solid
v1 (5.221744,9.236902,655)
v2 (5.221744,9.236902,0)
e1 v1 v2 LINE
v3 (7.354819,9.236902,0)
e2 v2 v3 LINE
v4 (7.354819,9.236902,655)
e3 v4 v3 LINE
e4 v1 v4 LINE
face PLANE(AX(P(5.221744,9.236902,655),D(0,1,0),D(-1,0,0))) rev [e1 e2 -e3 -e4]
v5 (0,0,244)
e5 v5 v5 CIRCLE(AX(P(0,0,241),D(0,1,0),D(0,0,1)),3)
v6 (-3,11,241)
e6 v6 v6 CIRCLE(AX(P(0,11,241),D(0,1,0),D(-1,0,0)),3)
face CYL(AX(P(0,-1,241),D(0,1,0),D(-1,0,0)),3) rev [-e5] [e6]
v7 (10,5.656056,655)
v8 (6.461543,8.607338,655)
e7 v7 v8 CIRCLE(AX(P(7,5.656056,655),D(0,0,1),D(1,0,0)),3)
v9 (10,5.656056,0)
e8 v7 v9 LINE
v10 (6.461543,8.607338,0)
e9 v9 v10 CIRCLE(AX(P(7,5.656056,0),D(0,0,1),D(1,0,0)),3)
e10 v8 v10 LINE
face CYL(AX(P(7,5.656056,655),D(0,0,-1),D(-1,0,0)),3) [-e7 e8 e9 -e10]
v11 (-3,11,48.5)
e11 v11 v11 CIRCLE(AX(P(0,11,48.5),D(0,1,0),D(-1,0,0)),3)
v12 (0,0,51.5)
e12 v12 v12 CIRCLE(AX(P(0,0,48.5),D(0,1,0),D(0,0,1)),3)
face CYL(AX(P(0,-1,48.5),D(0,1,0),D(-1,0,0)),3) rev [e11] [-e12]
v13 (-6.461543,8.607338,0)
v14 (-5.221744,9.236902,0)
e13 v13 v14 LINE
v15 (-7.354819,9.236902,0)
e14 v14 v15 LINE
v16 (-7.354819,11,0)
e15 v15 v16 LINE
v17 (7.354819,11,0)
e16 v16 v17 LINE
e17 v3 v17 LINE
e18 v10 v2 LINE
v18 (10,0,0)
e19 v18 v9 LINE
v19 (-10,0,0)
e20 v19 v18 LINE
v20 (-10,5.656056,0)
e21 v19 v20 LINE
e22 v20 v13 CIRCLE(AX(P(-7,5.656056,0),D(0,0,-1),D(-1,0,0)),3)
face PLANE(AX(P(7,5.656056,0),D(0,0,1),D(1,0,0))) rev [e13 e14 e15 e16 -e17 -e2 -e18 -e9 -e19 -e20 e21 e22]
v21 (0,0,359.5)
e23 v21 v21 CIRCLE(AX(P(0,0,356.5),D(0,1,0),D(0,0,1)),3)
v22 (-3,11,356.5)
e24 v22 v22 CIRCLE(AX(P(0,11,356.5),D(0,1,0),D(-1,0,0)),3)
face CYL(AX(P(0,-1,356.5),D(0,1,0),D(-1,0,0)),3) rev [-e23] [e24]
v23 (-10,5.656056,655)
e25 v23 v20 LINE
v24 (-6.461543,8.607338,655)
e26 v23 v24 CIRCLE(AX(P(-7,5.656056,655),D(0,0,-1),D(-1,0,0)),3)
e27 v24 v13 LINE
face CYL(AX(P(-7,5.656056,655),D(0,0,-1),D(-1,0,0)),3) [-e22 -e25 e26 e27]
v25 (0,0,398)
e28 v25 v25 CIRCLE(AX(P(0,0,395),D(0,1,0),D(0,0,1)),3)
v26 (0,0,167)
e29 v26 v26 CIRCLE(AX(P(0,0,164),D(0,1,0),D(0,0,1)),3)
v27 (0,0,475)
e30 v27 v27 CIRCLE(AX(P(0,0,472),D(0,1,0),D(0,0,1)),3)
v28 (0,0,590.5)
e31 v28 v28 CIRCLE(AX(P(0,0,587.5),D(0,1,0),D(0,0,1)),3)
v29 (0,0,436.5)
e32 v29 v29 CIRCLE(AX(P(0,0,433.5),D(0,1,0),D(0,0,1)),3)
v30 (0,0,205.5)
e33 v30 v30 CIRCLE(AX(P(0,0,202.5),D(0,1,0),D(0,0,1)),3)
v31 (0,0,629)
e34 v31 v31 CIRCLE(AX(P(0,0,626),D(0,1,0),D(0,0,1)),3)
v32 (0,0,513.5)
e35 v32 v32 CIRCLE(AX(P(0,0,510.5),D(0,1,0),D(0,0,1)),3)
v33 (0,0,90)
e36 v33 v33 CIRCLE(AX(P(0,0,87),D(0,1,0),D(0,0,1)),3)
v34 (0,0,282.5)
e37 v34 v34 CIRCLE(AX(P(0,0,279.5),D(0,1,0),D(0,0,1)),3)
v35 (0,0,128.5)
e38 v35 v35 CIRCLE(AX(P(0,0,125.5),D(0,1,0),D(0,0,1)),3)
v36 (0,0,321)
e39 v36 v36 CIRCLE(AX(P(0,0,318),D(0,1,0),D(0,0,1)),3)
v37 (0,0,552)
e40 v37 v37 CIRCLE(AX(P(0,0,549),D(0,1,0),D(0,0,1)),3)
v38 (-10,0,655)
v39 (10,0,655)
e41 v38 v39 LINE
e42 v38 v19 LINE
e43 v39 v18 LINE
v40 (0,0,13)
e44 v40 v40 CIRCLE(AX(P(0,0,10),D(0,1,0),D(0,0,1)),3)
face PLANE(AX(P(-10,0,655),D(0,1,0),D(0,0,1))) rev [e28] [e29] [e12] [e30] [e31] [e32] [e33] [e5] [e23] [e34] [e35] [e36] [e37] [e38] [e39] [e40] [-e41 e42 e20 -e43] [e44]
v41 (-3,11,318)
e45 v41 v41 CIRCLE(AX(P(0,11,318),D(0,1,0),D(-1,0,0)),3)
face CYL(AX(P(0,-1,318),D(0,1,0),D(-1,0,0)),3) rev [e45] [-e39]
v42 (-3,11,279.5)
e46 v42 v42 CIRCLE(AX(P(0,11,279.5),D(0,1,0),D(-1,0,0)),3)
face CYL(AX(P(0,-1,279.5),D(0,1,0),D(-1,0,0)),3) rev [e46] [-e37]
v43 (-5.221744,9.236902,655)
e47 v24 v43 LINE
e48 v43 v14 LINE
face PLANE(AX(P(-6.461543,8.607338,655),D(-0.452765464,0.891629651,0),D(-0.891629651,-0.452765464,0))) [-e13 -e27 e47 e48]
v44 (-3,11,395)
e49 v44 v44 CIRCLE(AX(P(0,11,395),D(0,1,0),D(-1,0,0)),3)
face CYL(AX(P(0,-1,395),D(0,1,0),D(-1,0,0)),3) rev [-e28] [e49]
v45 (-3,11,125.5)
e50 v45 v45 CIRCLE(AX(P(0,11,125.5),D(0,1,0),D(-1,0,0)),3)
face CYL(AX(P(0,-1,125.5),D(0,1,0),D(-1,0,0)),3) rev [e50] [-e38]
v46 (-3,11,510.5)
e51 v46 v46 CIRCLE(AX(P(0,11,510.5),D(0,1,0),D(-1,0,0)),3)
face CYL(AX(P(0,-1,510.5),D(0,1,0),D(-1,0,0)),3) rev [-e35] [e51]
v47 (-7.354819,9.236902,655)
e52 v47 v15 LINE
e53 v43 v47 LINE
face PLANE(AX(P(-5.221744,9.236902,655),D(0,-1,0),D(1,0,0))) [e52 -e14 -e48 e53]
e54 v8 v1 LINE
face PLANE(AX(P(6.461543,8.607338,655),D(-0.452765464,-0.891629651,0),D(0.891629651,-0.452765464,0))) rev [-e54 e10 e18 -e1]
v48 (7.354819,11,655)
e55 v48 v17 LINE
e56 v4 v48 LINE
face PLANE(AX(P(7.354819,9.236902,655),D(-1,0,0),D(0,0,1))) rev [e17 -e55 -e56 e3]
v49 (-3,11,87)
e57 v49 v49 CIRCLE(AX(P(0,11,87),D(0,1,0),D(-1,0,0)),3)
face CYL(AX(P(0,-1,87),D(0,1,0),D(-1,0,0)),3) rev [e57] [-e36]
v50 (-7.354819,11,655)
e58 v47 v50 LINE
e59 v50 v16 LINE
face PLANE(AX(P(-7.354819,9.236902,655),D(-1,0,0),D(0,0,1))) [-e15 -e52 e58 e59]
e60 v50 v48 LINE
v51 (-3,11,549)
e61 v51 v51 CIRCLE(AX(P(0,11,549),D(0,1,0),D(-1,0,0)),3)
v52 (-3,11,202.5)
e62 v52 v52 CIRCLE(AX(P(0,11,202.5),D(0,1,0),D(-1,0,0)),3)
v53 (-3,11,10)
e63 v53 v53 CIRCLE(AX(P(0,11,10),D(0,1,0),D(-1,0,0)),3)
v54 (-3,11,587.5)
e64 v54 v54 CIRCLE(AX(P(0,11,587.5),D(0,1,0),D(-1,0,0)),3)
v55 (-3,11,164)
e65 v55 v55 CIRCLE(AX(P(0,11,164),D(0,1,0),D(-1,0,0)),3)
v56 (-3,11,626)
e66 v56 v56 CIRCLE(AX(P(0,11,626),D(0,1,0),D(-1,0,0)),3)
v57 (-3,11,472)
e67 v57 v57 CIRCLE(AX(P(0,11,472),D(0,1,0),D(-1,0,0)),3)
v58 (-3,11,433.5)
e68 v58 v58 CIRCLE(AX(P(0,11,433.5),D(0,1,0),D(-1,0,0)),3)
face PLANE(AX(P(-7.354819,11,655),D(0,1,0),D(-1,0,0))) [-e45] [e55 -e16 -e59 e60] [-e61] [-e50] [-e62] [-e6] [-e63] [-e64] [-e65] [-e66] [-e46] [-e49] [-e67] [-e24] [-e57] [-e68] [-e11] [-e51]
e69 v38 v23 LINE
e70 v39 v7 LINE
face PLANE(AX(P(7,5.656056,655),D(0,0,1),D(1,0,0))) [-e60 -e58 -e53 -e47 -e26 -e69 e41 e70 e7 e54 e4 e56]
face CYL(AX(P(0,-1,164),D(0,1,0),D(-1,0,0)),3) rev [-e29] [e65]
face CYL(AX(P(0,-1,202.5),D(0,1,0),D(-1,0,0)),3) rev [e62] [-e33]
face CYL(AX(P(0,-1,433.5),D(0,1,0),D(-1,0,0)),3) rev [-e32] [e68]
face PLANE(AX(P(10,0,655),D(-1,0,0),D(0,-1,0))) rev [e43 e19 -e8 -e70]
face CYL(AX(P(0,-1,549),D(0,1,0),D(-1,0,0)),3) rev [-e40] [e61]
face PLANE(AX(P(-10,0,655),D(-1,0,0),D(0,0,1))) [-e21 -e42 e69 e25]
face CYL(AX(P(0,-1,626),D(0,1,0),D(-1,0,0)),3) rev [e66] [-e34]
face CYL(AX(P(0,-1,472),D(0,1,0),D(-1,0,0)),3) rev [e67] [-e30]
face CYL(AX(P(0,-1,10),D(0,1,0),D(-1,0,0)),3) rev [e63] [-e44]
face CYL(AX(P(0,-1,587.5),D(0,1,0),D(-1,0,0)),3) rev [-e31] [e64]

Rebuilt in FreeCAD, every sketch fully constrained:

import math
import FreeCAD as App
import Part
import Sketcher
Q = App.Units.Quantity

doc = App.newDocument("Part")
body = doc.addObject("PartDesign::Body", "Body")

# Sketch on XY plane
sketch1 = body.newObject("Sketcher::SketchObject", "Sketch")
sketch1.AttachmentSupport = (doc.getObject("XY_Plane"), [""])
sketch1.MapMode = "FlatFace"
sketch1.addGeometry([
    Part.LineSegment(App.Vector(-10, 5.7, 0), App.Vector(-10, 0, 0)),  # 0
    Part.LineSegment(App.Vector(-10, 0, 0), App.Vector(10, 0, 0)),  # 1
    Part.LineSegment(App.Vector(10, 0, 0), App.Vector(10, 5.7, 0)),  # 2
    Part.ArcOfCircle(Part.Circle(App.Vector(7, 5.7, 0), App.Vector(0, 0, 1), 3), math.radians(0), math.radians(100)),  # 3
    Part.LineSegment(App.Vector(6.5, 8.6, 0), App.Vector(5.2, 9.2, 0)),  # 4
    Part.LineSegment(App.Vector(5.2, 9.2, 0), App.Vector(7.4, 9.2, 0)),  # 5
    Part.LineSegment(App.Vector(7.4, 9.2, 0), App.Vector(7.4, 11, 0)),  # 6
    Part.LineSegment(App.Vector(7.4, 11, 0), App.Vector(-7.4, 11, 0)),  # 7
    Part.LineSegment(App.Vector(-7.4, 11, 0), App.Vector(-7.4, 9.2, 0)),  # 8
    Part.LineSegment(App.Vector(-7.4, 9.2, 0), App.Vector(-5.2, 9.2, 0)),  # 9
    Part.LineSegment(App.Vector(-5.2, 9.2, 0), App.Vector(-6.5, 8.6, 0)),  # 10
    Part.ArcOfCircle(Part.Circle(App.Vector(-7, 5.7, 0), App.Vector(0, 0, 1), 3), math.radians(80), math.radians(180)),  # 11
], False)
sketch1.addConstraint([
    Sketcher.Constraint("Coincident", 0, 2, 1, 1),
    Sketcher.Constraint("Coincident", 1, 2, 2, 1),
    Sketcher.Constraint("Tangent", 2, 2, 3, 1),
    Sketcher.Constraint("Coincident", 3, 2, 4, 1),
    Sketcher.Constraint("Coincident", 4, 2, 5, 1),
    Sketcher.Constraint("Coincident", 5, 2, 6, 1),
    Sketcher.Constraint("Coincident", 6, 2, 7, 1),
    Sketcher.Constraint("Coincident", 7, 2, 8, 1),
    Sketcher.Constraint("Coincident", 8, 2, 9, 1),
    Sketcher.Constraint("Coincident", 9, 2, 10, 1),
    Sketcher.Constraint("Coincident", 10, 2, 11, 1),
    Sketcher.Constraint("Tangent", 11, 2, 0, 1),
    Sketcher.Constraint("Vertical", 0),
    Sketcher.Constraint("Horizontal", 1),
    Sketcher.Constraint("Vertical", 2),
    Sketcher.Constraint("Horizontal", 5),
    Sketcher.Constraint("Vertical", 6),
    Sketcher.Constraint("Horizontal", 7),
    Sketcher.Constraint("Vertical", 8),
    Sketcher.Constraint("Horizontal", 9),
    Sketcher.Constraint("Equal", 3, 11),
    Sketcher.Constraint("Symmetric", 0, 2, 1, 2, -1, 1),
    Sketcher.Constraint("Symmetric", 5, 2, 8, 2, -2),
    Sketcher.Constraint("Symmetric", 3, 2, 10, 2, -2),
    Sketcher.Constraint("Equal", 5, 9),
    Sketcher.Constraint("Radius", 3, Q("3 mm")),
    Sketcher.Constraint("DistanceX", 1, 1, 1, 2, Q("20 mm")),
    Sketcher.Constraint("DistanceY", -1, 1, 6, 2, Q("11 mm")),
    Sketcher.Constraint("DistanceX", 4, 2, 3, 2, Q("1.239799 mm")),
    Sketcher.Constraint("DistanceX", 5, 1, 5, 2, Q("2.133075 mm")),
    Sketcher.Constraint("DistanceX", 7, 2, 7, 1, Q("14.709637 mm")),
    Sketcher.Constraint("DistanceY", 0, 2, 0, 1, Q("5.656056 mm")),
    Sketcher.Constraint("DistanceY", 6, 1, 6, 2, Q("1.763098 mm")),
])
pad1 = body.newObject("PartDesign::Pad", "Pad")
pad1.Profile = sketch1
pad1.Length = 655

# Sketch on XZ plane
sketch2 = body.newObject("Sketcher::SketchObject", "Sketch001")
sketch2.AttachmentSupport = (doc.getObject("XZ_Plane"), [""])
sketch2.MapMode = "FlatFace"
sketch2.AttachmentOffset = App.Placement(App.Vector(0, 0, -11), App.Rotation())
sketch2.addGeometry([
    Part.Circle(App.Vector(0, 10, 0), App.Vector(0, 0, 1), 3),  # 0
    Part.Circle(App.Vector(0, 48.5, 0), App.Vector(0, 0, 1), 3),  # 1
    Part.Circle(App.Vector(0, 87, 0), App.Vector(0, 0, 1), 3),  # 2
    Part.Circle(App.Vector(0, 125.5, 0), App.Vector(0, 0, 1), 3),  # 3
    Part.Circle(App.Vector(0, 164, 0), App.Vector(0, 0, 1), 3),  # 4
    Part.Circle(App.Vector(0, 202.5, 0), App.Vector(0, 0, 1), 3),  # 5
    Part.Circle(App.Vector(0, 241, 0), App.Vector(0, 0, 1), 3),  # 6
    Part.Circle(App.Vector(0, 279.5, 0), App.Vector(0, 0, 1), 3),  # 7
    Part.Circle(App.Vector(0, 318, 0), App.Vector(0, 0, 1), 3),  # 8
    Part.Circle(App.Vector(0, 356.5, 0), App.Vector(0, 0, 1), 3),  # 9
    Part.Circle(App.Vector(0, 395, 0), App.Vector(0, 0, 1), 3),  # 10
    Part.Circle(App.Vector(0, 433.5, 0), App.Vector(0, 0, 1), 3),  # 11
    Part.Circle(App.Vector(0, 472, 0), App.Vector(0, 0, 1), 3),  # 12
    Part.Circle(App.Vector(0, 510.5, 0), App.Vector(0, 0, 1), 3),  # 13
    Part.Circle(App.Vector(0, 549, 0), App.Vector(0, 0, 1), 3),  # 14
    Part.Circle(App.Vector(0, 587.5, 0), App.Vector(0, 0, 1), 3),  # 15
    Part.Circle(App.Vector(0, 626, 0), App.Vector(0, 0, 1), 3),  # 16
], False)
sketch2.addConstraint([
    Sketcher.Constraint("Equal", 0, 1),
    Sketcher.Constraint("Equal", 1, 2),
    Sketcher.Constraint("Equal", 2, 3),
    Sketcher.Constraint("Equal", 3, 4),
    Sketcher.Constraint("Equal", 4, 5),
    Sketcher.Constraint("Equal", 5, 6),
    Sketcher.Constraint("Equal", 6, 7),
    Sketcher.Constraint("Equal", 7, 8),
    Sketcher.Constraint("Equal", 8, 9),
    Sketcher.Constraint("Equal", 9, 10),
    Sketcher.Constraint("Equal", 10, 11),
    Sketcher.Constraint("Equal", 11, 12),
    Sketcher.Constraint("Equal", 12, 13),
    Sketcher.Constraint("Equal", 13, 14),
    Sketcher.Constraint("Equal", 14, 15),
    Sketcher.Constraint("Equal", 15, 16),
    Sketcher.Constraint("PointOnObject", 0, 3, -2),
    Sketcher.Constraint("PointOnObject", 1, 3, -2),
    Sketcher.Constraint("PointOnObject", 2, 3, -2),
    Sketcher.Constraint("PointOnObject", 3, 3, -2),
    Sketcher.Constraint("PointOnObject", 4, 3, -2),
    Sketcher.Constraint("PointOnObject", 5, 3, -2),
    Sketcher.Constraint("PointOnObject", 6, 3, -2),
    Sketcher.Constraint("PointOnObject", 7, 3, -2),
    Sketcher.Constraint("PointOnObject", 8, 3, -2),
    Sketcher.Constraint("PointOnObject", 9, 3, -2),
    Sketcher.Constraint("PointOnObject", 10, 3, -2),
    Sketcher.Constraint("PointOnObject", 11, 3, -2),
    Sketcher.Constraint("PointOnObject", 12, 3, -2),
    Sketcher.Constraint("PointOnObject", 13, 3, -2),
    Sketcher.Constraint("PointOnObject", 14, 3, -2),
    Sketcher.Constraint("PointOnObject", 15, 3, -2),
    Sketcher.Constraint("PointOnObject", 16, 3, -2),
    Sketcher.Constraint("Diameter", 0, Q("6 mm")),
    Sketcher.Constraint("DistanceY", -1, 1, 0, 3, Q("10 mm")),
    Sketcher.Constraint("DistanceY", -1, 1, 2, 3, Q("87 mm")),
    Sketcher.Constraint("DistanceY", -1, 1, 4, 3, Q("164 mm")),
    Sketcher.Constraint("DistanceY", -1, 1, 6, 3, Q("241 mm")),
    Sketcher.Constraint("DistanceY", -1, 1, 8, 3, Q("318 mm")),
    Sketcher.Constraint("DistanceY", -1, 1, 10, 3, Q("395 mm")),
    Sketcher.Constraint("DistanceY", -1, 1, 12, 3, Q("472 mm")),
    Sketcher.Constraint("DistanceY", -1, 1, 14, 3, Q("549 mm")),
    Sketcher.Constraint("DistanceY", -1, 1, 16, 3, Q("626 mm")),
    Sketcher.Constraint("DistanceY", 1, 3, 3, 3, Q("77 mm")),
    Sketcher.Constraint("DistanceY", 3, 3, 5, 3, Q("77 mm")),
    Sketcher.Constraint("DistanceY", 5, 3, 7, 3, Q("77 mm")),
    Sketcher.Constraint("DistanceY", 7, 3, 9, 3, Q("77 mm")),
    Sketcher.Constraint("DistanceY", 9, 3, 11, 3, Q("77 mm")),
    Sketcher.Constraint("DistanceY", 11, 3, 13, 3, Q("77 mm")),
    Sketcher.Constraint("DistanceY", 13, 3, 15, 3, Q("77 mm")),
    Sketcher.Constraint("DistanceY", -1, 1, 1, 3, Q("48.5 mm")),
])
pocket1 = body.newObject("PartDesign::Pocket", "Pocket")
pocket1.Profile = sketch2
pocket1.Length = 12
pocket1.Reversed = True

doc.recompute()
